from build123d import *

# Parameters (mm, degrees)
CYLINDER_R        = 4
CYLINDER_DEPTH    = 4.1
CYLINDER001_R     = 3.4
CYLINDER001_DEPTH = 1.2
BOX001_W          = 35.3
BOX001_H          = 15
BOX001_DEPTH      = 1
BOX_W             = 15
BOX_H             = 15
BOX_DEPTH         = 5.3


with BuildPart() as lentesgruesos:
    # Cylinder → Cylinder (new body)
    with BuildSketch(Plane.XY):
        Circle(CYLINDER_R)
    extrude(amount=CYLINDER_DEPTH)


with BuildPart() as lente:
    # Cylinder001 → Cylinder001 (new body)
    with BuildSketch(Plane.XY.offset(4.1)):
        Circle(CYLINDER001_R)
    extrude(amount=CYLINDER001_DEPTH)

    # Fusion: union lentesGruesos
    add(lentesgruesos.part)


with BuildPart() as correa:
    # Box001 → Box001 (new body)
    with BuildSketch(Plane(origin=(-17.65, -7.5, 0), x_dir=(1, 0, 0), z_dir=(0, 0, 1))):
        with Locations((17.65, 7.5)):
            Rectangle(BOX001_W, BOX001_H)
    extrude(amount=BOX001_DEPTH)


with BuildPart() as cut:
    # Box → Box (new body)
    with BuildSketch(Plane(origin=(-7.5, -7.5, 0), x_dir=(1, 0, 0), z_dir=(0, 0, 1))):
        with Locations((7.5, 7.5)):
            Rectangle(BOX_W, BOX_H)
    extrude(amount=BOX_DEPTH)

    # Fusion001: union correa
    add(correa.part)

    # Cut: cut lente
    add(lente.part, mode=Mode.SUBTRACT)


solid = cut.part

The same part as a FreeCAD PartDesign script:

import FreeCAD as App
import Part
import Sketcher

V = App.Vector

doc = App.newDocument("Part")
body = doc.addObject("PartDesign::Body", "Body")

sketch1 = body.newObject("Sketcher::SketchObject", "Sketch")
sketch1.AttachmentSupport = (doc.getObject("XY_Plane"), [""])
sketch1.MapMode = "FlatFace"
sketch1.addGeometry(Part.Circle(V(0, 0, 0), V(0, 0, 1), 4), False)
sketch1.addConstraint(Sketcher.Constraint("Coincident", 0, 3, -1, 1))
sketch1.addConstraint(Sketcher.Constraint("Diameter", 0, 8.0))
pad1 = body.newObject("PartDesign::Pad", "Pad")
pad1.Profile = sketch1
pad1.Length = 4.1
body2 = doc.addObject("PartDesign::Body", "Body001")

sketch2 = body2.newObject("Sketcher::SketchObject", "Sketch001")
sketch2.AttachmentSupport = (doc.getObject("XY_Plane001"), [""])
sketch2.MapMode = "FlatFace"
sketch2.AttachmentOffset = App.Placement(V(0, 0, 4.1), App.Rotation())
sketch2.addGeometry(Part.Circle(V(0, 0, 0), V(0, 0, 1), 3.4), False)
sketch2.addConstraint(Sketcher.Constraint("Coincident", 0, 3, -1, 1))
sketch2.addConstraint(Sketcher.Constraint("Diameter", 0, 6.8))
pad2 = body2.newObject("PartDesign::Pad", "Pad001")
pad2.Profile = sketch2
pad2.Length = 1.2
doc.recompute()

boolean = body2.newObject("PartDesign::Boolean", "Boolean")
boolean.Type = "Fuse"
boolean.addObjects([body])
body3 = doc.addObject("PartDesign::Body", "Body002")

sketch3 = body3.newObject("Sketcher::SketchObject", "Sketch002")
sketch3.AttachmentSupport = (doc.getObject("XY_Plane002"), [""])
sketch3.MapMode = "FlatFace"
sketch3.addGeometry(Part.LineSegment(V(-18, 8, 0), V(-18, -8, 0)), False)
sketch3.addGeometry(Part.LineSegment(V(-18, -8, 0), V(18, -8, 0)), False)
sketch3.addGeometry(Part.LineSegment(V(18, -8, 0), V(18, 8, 0)), False)
sketch3.addGeometry(Part.LineSegment(V(18, 8, 0), V(-18, 8, 0)), False)
sketch3.addConstraint(Sketcher.Constraint("Coincident", 0, 2, 1, 1))
sketch3.addConstraint(Sketcher.Constraint("Coincident", 1, 2, 2, 1))
sketch3.addConstraint(Sketcher.Constraint("Coincident", 2, 2, 3, 1))
sketch3.addConstraint(Sketcher.Constraint("Coincident", 3, 2, 0, 1))
sketch3.addConstraint(Sketcher.Constraint("Vertical", 0))
sketch3.addConstraint(Sketcher.Constraint("Horizontal", 1))
sketch3.addConstraint(Sketcher.Constraint("Vertical", 2))
sketch3.addConstraint(Sketcher.Constraint("Horizontal", 3))
sketch3.addConstraint(Sketcher.Constraint("Symmetric", 0, 2, 2, 2, -1, 1))
sketch3.addConstraint(Sketcher.Constraint("DistanceY", 0, 2, 0, 1, 15.0))
sketch3.addConstraint(Sketcher.Constraint("DistanceX", 1, 1, 1, 2, 35.3))
pad3 = body3.newObject("PartDesign::Pad", "Pad002")
pad3.Profile = sketch3
pad3.Length = 1
body4 = doc.addObject("PartDesign::Body", "Body003")

sketch4 = body4.newObject("Sketcher::SketchObject", "Sketch003")
sketch4.AttachmentSupport = (doc.getObject("XY_Plane003"), [""])
sketch4.MapMode = "FlatFace"
sketch4.addGeometry(Part.LineSegment(V(-8, 8, 0), V(-8, -8, 0)), False)
sketch4.addGeometry(Part.LineSegment(V(-8, -8, 0), V(8, -8, 0)), False)
sketch4.addGeometry(Part.LineSegment(V(8, -8, 0), V(8, 8, 0)), False)
sketch4.addGeometry(Part.LineSegment(V(8, 8, 0), V(-8, 8, 0)), False)
sketch4.addConstraint(Sketcher.Constraint("Coincident", 0, 2, 1, 1))
sketch4.addConstraint(Sketcher.Constraint("Coincident", 1, 2, 2, 1))
sketch4.addConstraint(Sketcher.Constraint("Coincident", 2, 2, 3, 1))
sketch4.addConstraint(Sketcher.Constraint("Coincident", 3, 2, 0, 1))
sketch4.addConstraint(Sketcher.Constraint("Vertical", 0))
sketch4.addConstraint(Sketcher.Constraint("Horizontal", 1))
sketch4.addConstraint(Sketcher.Constraint("Vertical", 2))
sketch4.addConstraint(Sketcher.Constraint("Horizontal", 3))
sketch4.addConstraint(Sketcher.Constraint("Symmetric", 0, 2, 2, 2, -1, 1))
sketch4.addConstraint(Sketcher.Constraint("Equal", 3, 0))
sketch4.addConstraint(Sketcher.Constraint("DistanceX", 1, 1, 1, 2, 15.0))
pad4 = body4.newObject("PartDesign::Pad", "Pad003")
pad4.Profile = sketch4
pad4.Length = 5.3
doc.recompute()

boolean2 = body4.newObject("PartDesign::Boolean", "Boolean001")
boolean2.Type = "Fuse"
boolean2.addObjects([body3])
doc.recompute()

boolean3 = body4.newObject("PartDesign::Boolean", "Boolean002")
boolean3.Type = "Cut"
boolean3.addObjects([body2])

doc.recompute()
